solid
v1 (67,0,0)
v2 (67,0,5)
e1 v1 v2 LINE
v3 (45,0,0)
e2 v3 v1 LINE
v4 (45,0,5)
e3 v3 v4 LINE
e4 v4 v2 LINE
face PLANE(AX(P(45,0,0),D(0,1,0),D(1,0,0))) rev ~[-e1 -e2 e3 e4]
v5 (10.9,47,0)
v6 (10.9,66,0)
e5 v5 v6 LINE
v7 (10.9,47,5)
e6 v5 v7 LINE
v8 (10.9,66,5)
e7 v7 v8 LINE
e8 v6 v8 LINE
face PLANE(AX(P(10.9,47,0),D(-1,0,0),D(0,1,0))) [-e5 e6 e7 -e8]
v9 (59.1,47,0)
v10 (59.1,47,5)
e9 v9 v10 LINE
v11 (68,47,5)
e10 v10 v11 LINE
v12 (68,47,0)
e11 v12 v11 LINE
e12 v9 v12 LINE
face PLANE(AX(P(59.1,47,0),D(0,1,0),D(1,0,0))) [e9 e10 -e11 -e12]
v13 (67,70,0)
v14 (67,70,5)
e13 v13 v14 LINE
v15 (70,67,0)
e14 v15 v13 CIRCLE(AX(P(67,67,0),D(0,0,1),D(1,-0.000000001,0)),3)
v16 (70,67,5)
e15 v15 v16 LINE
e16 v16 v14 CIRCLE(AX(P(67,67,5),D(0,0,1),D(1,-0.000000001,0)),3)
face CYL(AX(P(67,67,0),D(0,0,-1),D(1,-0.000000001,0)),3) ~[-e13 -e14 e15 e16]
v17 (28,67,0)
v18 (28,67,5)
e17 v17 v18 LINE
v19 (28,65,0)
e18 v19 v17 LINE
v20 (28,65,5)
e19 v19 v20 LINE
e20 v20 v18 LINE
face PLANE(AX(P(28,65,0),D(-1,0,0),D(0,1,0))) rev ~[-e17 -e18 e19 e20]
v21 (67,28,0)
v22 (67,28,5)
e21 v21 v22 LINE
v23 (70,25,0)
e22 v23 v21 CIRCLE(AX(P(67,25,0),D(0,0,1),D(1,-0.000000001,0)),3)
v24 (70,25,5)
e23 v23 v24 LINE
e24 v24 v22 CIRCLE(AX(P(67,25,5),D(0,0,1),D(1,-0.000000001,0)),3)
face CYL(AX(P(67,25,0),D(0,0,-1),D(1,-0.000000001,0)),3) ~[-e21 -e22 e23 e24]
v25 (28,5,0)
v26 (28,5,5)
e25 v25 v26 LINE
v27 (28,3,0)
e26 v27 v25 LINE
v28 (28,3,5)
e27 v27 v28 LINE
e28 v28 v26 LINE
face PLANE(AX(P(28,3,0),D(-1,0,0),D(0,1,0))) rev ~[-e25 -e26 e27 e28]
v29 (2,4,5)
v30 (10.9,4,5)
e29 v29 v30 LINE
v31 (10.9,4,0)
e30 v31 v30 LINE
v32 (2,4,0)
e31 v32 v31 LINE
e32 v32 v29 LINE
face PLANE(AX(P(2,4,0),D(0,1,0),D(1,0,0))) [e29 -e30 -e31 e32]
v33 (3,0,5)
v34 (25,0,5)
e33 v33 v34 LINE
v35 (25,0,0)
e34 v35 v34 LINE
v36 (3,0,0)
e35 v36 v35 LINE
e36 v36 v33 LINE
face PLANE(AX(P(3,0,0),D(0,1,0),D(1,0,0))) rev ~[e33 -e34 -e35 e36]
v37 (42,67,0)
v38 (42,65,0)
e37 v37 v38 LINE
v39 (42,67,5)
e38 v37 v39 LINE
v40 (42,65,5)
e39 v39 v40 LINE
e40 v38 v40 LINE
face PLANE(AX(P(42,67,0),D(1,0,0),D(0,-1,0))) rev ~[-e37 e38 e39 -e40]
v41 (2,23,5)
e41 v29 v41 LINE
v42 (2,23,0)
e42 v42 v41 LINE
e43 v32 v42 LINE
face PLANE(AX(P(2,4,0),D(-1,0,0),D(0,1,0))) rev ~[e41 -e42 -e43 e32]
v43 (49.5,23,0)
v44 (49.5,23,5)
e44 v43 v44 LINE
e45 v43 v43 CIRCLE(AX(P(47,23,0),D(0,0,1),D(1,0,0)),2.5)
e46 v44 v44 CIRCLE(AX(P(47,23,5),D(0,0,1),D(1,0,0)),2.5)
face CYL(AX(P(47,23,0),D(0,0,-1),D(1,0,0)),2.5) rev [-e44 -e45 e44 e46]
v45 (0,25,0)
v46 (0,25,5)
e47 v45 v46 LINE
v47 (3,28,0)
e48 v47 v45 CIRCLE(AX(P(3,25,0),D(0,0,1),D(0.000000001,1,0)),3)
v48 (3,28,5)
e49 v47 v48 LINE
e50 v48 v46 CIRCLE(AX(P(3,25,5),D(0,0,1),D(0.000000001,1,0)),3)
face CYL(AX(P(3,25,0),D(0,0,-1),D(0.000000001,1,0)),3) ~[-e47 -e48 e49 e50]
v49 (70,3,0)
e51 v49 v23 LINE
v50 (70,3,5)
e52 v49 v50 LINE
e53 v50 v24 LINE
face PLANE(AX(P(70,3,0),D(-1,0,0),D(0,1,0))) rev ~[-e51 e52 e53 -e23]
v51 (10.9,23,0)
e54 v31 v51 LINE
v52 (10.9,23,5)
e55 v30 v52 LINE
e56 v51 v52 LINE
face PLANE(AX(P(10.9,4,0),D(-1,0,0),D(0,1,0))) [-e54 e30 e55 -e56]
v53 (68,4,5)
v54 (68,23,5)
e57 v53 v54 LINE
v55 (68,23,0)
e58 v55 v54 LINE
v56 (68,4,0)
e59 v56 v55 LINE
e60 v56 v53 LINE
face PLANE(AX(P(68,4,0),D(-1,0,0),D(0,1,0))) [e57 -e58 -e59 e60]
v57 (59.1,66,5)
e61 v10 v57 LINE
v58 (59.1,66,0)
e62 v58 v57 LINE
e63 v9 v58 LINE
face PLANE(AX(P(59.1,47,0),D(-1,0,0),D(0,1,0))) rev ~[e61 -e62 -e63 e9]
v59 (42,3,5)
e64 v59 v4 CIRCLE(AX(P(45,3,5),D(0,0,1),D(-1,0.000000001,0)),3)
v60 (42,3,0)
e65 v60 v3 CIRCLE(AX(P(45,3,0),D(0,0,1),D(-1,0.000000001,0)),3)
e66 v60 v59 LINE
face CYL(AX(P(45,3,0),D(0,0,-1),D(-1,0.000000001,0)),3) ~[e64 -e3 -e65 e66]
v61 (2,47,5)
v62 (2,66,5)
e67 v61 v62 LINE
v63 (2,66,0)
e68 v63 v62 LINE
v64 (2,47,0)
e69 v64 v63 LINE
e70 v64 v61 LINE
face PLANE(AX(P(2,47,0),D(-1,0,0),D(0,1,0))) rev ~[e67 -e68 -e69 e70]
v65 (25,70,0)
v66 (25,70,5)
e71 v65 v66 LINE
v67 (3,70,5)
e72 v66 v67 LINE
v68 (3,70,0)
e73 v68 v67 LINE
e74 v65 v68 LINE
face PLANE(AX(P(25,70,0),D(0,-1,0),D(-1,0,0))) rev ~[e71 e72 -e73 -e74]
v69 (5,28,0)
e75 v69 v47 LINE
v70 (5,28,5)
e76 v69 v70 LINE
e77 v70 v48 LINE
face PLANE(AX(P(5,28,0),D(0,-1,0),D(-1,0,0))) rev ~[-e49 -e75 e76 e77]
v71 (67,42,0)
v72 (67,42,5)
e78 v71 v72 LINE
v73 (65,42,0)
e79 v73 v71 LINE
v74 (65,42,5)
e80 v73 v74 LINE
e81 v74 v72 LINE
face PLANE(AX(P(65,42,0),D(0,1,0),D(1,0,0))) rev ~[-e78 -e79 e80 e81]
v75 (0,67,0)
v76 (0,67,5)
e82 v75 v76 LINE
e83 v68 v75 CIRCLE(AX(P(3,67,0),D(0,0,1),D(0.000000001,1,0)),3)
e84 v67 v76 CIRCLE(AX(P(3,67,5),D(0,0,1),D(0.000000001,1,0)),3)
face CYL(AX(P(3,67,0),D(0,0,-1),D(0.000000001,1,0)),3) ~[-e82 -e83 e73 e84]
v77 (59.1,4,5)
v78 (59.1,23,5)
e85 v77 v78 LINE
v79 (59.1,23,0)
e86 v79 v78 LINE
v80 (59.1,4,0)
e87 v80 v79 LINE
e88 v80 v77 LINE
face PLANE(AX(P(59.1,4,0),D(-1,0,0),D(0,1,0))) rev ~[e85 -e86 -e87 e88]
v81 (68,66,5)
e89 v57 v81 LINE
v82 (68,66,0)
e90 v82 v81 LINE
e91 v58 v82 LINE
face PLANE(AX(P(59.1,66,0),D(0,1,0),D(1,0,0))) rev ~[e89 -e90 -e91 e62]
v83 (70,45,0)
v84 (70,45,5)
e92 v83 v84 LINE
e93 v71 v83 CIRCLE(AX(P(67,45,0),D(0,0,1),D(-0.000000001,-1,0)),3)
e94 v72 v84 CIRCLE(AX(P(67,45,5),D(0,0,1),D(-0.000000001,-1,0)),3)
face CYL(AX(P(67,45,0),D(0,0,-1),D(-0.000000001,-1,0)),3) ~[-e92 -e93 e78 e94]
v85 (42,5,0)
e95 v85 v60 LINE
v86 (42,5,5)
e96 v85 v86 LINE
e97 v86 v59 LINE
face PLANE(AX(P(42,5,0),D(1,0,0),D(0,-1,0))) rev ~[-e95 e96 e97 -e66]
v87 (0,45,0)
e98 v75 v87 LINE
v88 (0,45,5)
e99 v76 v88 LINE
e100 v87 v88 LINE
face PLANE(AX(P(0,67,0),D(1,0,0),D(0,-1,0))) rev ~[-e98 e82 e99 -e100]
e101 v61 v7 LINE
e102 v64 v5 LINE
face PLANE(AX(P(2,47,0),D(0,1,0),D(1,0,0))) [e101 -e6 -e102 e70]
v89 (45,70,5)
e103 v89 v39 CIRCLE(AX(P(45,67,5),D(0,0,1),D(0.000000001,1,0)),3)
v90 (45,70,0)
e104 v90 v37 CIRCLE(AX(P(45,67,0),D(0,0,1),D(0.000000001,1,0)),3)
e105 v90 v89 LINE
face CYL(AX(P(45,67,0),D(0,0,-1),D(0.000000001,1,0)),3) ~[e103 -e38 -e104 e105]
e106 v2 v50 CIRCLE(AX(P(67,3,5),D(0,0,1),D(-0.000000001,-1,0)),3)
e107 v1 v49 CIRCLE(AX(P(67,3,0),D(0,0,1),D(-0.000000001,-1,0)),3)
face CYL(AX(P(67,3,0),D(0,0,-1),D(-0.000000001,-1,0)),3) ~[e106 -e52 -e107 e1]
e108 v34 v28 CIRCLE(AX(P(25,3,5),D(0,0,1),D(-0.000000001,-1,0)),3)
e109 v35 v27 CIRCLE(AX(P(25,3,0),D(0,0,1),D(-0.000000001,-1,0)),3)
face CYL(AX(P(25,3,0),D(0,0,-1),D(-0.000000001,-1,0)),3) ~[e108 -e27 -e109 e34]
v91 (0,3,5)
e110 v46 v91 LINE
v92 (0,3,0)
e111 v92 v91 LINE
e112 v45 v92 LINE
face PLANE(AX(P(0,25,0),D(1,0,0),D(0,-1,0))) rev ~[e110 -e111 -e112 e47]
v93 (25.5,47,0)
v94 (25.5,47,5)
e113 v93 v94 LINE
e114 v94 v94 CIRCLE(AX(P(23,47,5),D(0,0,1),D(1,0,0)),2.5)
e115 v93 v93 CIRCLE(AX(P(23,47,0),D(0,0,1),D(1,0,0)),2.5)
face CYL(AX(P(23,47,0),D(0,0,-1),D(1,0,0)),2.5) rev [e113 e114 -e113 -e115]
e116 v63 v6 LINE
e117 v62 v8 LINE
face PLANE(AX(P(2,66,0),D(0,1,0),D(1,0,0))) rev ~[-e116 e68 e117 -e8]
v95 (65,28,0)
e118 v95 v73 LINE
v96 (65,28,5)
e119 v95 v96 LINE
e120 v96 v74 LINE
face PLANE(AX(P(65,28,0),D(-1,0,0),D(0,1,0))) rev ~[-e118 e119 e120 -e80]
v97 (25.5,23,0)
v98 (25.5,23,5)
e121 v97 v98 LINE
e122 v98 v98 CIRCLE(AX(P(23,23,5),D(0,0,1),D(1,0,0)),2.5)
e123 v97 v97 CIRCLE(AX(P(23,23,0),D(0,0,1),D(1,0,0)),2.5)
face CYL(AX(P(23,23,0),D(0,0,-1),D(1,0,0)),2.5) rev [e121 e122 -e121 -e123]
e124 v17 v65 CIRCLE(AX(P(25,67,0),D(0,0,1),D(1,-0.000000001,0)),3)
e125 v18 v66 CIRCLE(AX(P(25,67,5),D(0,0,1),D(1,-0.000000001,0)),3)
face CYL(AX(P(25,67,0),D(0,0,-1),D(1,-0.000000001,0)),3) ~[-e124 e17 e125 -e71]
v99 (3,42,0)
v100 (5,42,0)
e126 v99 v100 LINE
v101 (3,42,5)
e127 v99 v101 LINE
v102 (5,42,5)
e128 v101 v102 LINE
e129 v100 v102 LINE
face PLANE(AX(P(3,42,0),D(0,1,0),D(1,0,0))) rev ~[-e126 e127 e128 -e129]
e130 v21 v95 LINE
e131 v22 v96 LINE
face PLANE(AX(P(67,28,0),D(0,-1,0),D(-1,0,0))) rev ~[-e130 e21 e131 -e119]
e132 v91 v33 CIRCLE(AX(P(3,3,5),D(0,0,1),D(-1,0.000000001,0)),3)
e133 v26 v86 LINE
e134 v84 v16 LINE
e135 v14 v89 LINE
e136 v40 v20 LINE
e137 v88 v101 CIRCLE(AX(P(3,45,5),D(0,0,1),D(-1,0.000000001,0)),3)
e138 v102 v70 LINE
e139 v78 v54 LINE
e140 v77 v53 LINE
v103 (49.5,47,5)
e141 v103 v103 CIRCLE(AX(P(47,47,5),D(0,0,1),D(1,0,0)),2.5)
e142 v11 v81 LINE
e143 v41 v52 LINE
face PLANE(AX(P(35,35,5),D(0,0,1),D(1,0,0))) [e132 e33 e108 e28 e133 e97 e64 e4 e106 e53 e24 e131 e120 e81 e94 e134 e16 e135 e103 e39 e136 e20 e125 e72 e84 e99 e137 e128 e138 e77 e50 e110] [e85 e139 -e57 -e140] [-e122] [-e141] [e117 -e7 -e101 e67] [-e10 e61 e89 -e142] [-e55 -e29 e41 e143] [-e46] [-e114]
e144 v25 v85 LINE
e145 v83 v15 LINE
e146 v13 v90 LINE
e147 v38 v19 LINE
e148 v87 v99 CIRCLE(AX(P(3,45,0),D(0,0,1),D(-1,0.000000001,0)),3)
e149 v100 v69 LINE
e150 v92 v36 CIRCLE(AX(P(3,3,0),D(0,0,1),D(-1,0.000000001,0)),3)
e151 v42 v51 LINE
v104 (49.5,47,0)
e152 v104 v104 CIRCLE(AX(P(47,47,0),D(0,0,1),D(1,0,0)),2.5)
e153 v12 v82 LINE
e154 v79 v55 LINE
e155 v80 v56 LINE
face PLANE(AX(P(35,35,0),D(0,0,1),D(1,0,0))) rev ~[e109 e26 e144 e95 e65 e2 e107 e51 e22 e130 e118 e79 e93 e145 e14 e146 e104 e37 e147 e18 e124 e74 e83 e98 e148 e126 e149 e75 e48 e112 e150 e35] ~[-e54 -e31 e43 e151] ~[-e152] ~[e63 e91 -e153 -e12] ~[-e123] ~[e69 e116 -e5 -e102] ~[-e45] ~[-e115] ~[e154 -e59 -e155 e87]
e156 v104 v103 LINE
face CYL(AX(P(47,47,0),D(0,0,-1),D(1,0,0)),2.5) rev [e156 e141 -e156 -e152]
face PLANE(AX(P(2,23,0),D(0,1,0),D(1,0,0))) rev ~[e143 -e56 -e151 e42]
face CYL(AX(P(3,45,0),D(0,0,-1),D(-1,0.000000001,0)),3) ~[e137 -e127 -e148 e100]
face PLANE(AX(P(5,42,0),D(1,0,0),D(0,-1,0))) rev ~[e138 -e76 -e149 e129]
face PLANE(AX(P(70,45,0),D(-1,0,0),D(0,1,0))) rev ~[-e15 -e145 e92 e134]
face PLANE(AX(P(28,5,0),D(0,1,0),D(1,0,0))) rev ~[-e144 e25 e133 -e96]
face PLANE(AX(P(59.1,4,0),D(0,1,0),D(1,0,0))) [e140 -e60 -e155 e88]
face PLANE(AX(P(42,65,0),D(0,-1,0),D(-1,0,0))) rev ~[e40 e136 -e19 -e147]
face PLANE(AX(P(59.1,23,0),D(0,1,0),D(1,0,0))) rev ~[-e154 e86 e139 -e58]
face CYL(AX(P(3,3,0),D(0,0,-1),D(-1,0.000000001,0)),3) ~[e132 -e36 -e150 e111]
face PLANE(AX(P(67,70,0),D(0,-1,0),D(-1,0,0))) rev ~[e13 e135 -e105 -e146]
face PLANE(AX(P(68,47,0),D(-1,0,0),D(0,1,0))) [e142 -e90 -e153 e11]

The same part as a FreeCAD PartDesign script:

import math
import FreeCAD as App
import Part
import Sketcher

V = App.Vector

doc = App.newDocument("Part")
body = doc.addObject("PartDesign::Body", "Body")

sketch1 = body.newObject("Sketcher::SketchObject", "Sketch")
sketch1.AttachmentSupport = (doc.getObject("XY_Plane"), [""])
sketch1.MapMode = "FlatFace"
sketch1.addGeometry([
    Part.LineSegment(V(3, 0, 0), V(25, 0, 0)),
    Part.ArcOfCircle(Part.Circle(V(25, 3, 0), V(0, 0, 1), 3), math.radians(-90), math.radians(0)),
    Part.LineSegment(V(28, 3, 0), V(28, 5, 0)),
    Part.LineSegment(V(28, 5, 0), V(42, 5, 0)),
    Part.LineSegment(V(42, 5, 0), V(42, 3, 0)),
    Part.ArcOfCircle(Part.Circle(V(45, 3, 0), V(0, 0, 1), 3), math.radians(180), math.radians(270)),
    Part.LineSegment(V(45, 0, 0), V(67, 0, 0)),
    Part.ArcOfCircle(Part.Circle(V(67, 3, 0), V(0, 0, 1), 3), math.radians(-90), math.radians(0)),
    Part.LineSegment(V(70, 3, 0), V(70, 25, 0)),
    Part.ArcOfCircle(Part.Circle(V(67, 25, 0), V(0, 0, 1), 3), math.radians(0), math.radians(90)),
    Part.LineSegment(V(67, 28, 0), V(65, 28, 0)),
    Part.LineSegment(V(65, 28, 0), V(65, 42, 0)),
    Part.LineSegment(V(65, 42, 0), V(67, 42, 0)),
    Part.ArcOfCircle(Part.Circle(V(67, 45, 0), V(0, 0, 1), 3), math.radians(-90), math.radians(0)),
    Part.LineSegment(V(70, 45, 0), V(70, 67, 0)),
    Part.ArcOfCircle(Part.Circle(V(67, 67, 0), V(0, 0, 1), 3), math.radians(0), math.radians(90)),
    Part.LineSegment(V(67, 70, 0), V(45, 70, 0)),
    Part.ArcOfCircle(Part.Circle(V(45, 67, 0), V(0, 0, 1), 3), math.radians(90), math.radians(180)),
    Part.LineSegment(V(42, 67, 0), V(42, 65, 0)),
    Part.LineSegment(V(42, 65, 0), V(28, 65, 0)),
    Part.LineSegment(V(28, 65, 0), V(28, 67, 0)),
    Part.ArcOfCircle(Part.Circle(V(25, 67, 0), V(0, 0, 1), 3), math.radians(0), math.radians(90)),
    Part.LineSegment(V(25, 70, 0), V(3, 70, 0)),
    Part.ArcOfCircle(Part.Circle(V(3, 67, 0), V(0, 0, 1), 3), math.radians(90), math.radians(180)),
    Part.LineSegment(V(0, 67, 0), V(0, 45, 0)),
    Part.ArcOfCircle(Part.Circle(V(3, 45, 0), V(0, 0, 1), 3), math.radians(180), math.radians(270)),
    Part.LineSegment(V(3, 42, 0), V(5, 42, 0)),
    Part.LineSegment(V(5, 42, 0), V(5, 28, 0)),
    Part.LineSegment(V(5, 28, 0), V(3, 28, 0)),
    Part.ArcOfCircle(Part.Circle(V(3, 25, 0), V(0, 0, 1), 3), math.radians(90), math.radians(180)),
    Part.LineSegment(V(0, 25, 0), V(0, 3, 0)),
    Part.ArcOfCircle(Part.Circle(V(3, 3, 0), V(0, 0, 1), 3), math.radians(180), math.radians(270)),
    Part.LineSegment(V(10.9, 4, 0), V(2, 4, 0)),
    Part.LineSegment(V(2, 4, 0), V(2, 23, 0)),
    Part.LineSegment(V(2, 23, 0), V(10.9, 23, 0)),
    Part.LineSegment(V(10.9, 23, 0), V(10.9, 4, 0)),
    Part.Circle(V(23, 23, 0), V(0, 0, 1), 2.5),
    Part.LineSegment(V(68, 4, 0), V(59.1, 4, 0)),
    Part.LineSegment(V(59.1, 4, 0), V(59.1, 23, 0)),
    Part.LineSegment(V(59.1, 23, 0), V(68, 23, 0)),
    Part.LineSegment(V(68, 23, 0), V(68, 4, 0)),
    Part.Circle(V(47, 23, 0), V(0, 0, 1), 2.5),
    Part.Circle(V(23, 47, 0), V(0, 0, 1), 2.5),
    Part.LineSegment(V(10.9, 47, 0), V(2, 47, 0)),
    Part.LineSegment(V(2, 47, 0), V(2, 66, 0)),
    Part.LineSegment(V(2, 66, 0), V(10.9, 66, 0)),
    Part.LineSegment(V(10.9, 66, 0), V(10.9, 47, 0)),
    Part.Circle(V(47, 47, 0), V(0, 0, 1), 2.5),
    Part.LineSegment(V(68, 47, 0), V(59.1, 47, 0)),
    Part.LineSegment(V(59.1, 47, 0), V(59.1, 66, 0)),
    Part.LineSegment(V(59.1, 66, 0), V(68, 66, 0)),
    Part.LineSegment(V(68, 66, 0), V(68, 47, 0)),
], False)
sketch1.addConstraint([
    Sketcher.Constraint("Tangent", 0, 2, 1, 1),
    Sketcher.Constraint("Tangent", 1, 2, 2, 1),
    Sketcher.Constraint("Coincident", 2, 2, 3, 1),
    Sketcher.Constraint("Coincident", 3, 2, 4, 1),
    Sketcher.Constraint("Tangent", 4, 2, 5, 1),
    Sketcher.Constraint("Tangent", 5, 2, 6, 1),
    Sketcher.Constraint("Tangent", 6, 2, 7, 1),
    Sketcher.Constraint("Tangent", 7, 2, 8, 1),
    Sketcher.Constraint("Tangent", 8, 2, 9, 1),
    Sketcher.Constraint("Tangent", 9, 2, 10, 1),
    Sketcher.Constraint("Coincident", 10, 2, 11, 1),
    Sketcher.Constraint("Coincident", 11, 2, 12, 1),
    Sketcher.Constraint("Tangent", 12, 2, 13, 1),
    Sketcher.Constraint("Tangent", 13, 2, 14, 1),
    Sketcher.Constraint("Tangent", 14, 2, 15, 1),
    Sketcher.Constraint("Tangent", 15, 2, 16, 1),
    Sketcher.Constraint("Tangent", 16, 2, 17, 1),
    Sketcher.Constraint("Tangent", 17, 2, 18, 1),
    Sketcher.Constraint("Coincident", 18, 2, 19, 1),
    Sketcher.Constraint("Coincident", 19, 2, 20, 1),
    Sketcher.Constraint("Tangent", 20, 2, 21, 1),
    Sketcher.Constraint("Tangent", 21, 2, 22, 1),
    Sketcher.Constraint("Tangent", 22, 2, 23, 1),
    Sketcher.Constraint("Tangent", 23, 2, 24, 1),
    Sketcher.Constraint("Tangent", 24, 2, 25, 1),
    Sketcher.Constraint("Tangent", 25, 2, 26, 1),
    Sketcher.Constraint("Coincident", 26, 2, 27, 1),
    Sketcher.Constraint("Coincident", 27, 2, 28, 1),
    Sketcher.Constraint("Tangent", 28, 2, 29, 1),
    Sketcher.Constraint("Tangent", 29, 2, 30, 1),
    Sketcher.Constraint("Tangent", 30, 2, 31, 1),
    Sketcher.Constraint("Tangent", 31, 2, 0, 1),
    Sketcher.Constraint("Coincident", 32, 2, 33, 1),
    Sketcher.Constraint("Coincident", 33, 2, 34, 1),
    Sketcher.Constraint("Coincident", 34, 2, 35, 1),
    Sketcher.Constraint("Coincident", 35, 2, 32, 1),
    Sketcher.Constraint("Coincident", 37, 2, 38, 1),
    Sketcher.Constraint("Coincident", 38, 2, 39, 1),
    Sketcher.Constraint("Coincident", 39, 2, 40, 1),
    Sketcher.Constraint("Coincident", 40, 2, 37, 1),
    Sketcher.Constraint("Coincident", 43, 2, 44, 1),
    Sketcher.Constraint("Coincident", 44, 2, 45, 1),
    Sketcher.Constraint("Coincident", 45, 2, 46, 1),
    Sketcher.Constraint("Coincident", 46, 2, 43, 1),
    Sketcher.Constraint("Coincident", 48, 2, 49, 1),
    Sketcher.Constraint("Coincident", 49, 2, 50, 1),
    Sketcher.Constraint("Coincident", 50, 2, 51, 1),
    Sketcher.Constraint("Coincident", 51, 2, 48, 1),
    Sketcher.Constraint("Horizontal", 0),
    Sketcher.Constraint("Vertical", 2),
    Sketcher.Constraint("Horizontal", 3),
    Sketcher.Constraint("Vertical", 4),
    Sketcher.Constraint("Horizontal", 6),
    Sketcher.Constraint("Vertical", 8),
    Sketcher.Constraint("Horizontal", 10),
    Sketcher.Constraint("Vertical", 11),
    Sketcher.Constraint("Horizontal", 12),
    Sketcher.Constraint("Vertical", 14),
    Sketcher.Constraint("Horizontal", 16),
    Sketcher.Constraint("Vertical", 18),
    Sketcher.Constraint("Horizontal", 19),
    Sketcher.Constraint("Vertical", 20),
    Sketcher.Constraint("Horizontal", 22),
    Sketcher.Constraint("Vertical", 24),
    Sketcher.Constraint("Horizontal", 26),
    Sketcher.Constraint("Vertical", 27),
    Sketcher.Constraint("Horizontal", 28),
    Sketcher.Constraint("Vertical", 30),
    Sketcher.Constraint("Horizontal", 32),
    Sketcher.Constraint("Vertical", 33),
    Sketcher.Constraint("Horizontal", 34),
    Sketcher.Constraint("Vertical", 35),
    Sketcher.Constraint("Horizontal", 37),
    Sketcher.Constraint("Vertical", 38),
    Sketcher.Constraint("Horizontal", 39),
    Sketcher.Constraint("Vertical", 40),
    Sketcher.Constraint("Horizontal", 43),
    Sketcher.Constraint("Vertical", 44),
    Sketcher.Constraint("Horizontal", 45),
    Sketcher.Constraint("Vertical", 46),
    Sketcher.Constraint("Horizontal", 48),
    Sketcher.Constraint("Vertical", 49),
    Sketcher.Constraint("Horizontal", 50),
    Sketcher.Constraint("Vertical", 51),
    Sketcher.Constraint("Equal", 1, 5),
    Sketcher.Constraint("Equal", 5, 7),
    Sketcher.Constraint("Equal", 7, 9),
    Sketcher.Constraint("Equal", 9, 13),
    Sketcher.Constraint("Equal", 13, 15),
    Sketcher.Constraint("Equal", 15, 17),
    Sketcher.Constraint("Equal", 17, 21),
    Sketcher.Constraint("Equal", 21, 23),
    Sketcher.Constraint("Equal", 23, 25),
    Sketcher.Constraint("Equal", 25, 29),
    Sketcher.Constraint("Equal", 29, 31),
    Sketcher.Constraint("Equal", 36, 41),
    Sketcher.Constraint("Equal", 41, 42),
    Sketcher.Constraint("Equal", 42, 47),
    Sketcher.Constraint("PointOnObject", 0, 2, -1),
    Sketcher.Constraint("PointOnObject", 5, 2, -1),
    Sketcher.Constraint("PointOnObject", 23, 2, -2),
    Sketcher.Constraint("PointOnObject", 29, 2, -2),
    Sketcher.Constraint("Horizontal", 17, 3, 21, 3),
    Sketcher.Constraint("Horizontal", 13, 3, 25, 3),
    Sketcher.Constraint("Horizontal", 9, 3, 29, 3),
    Sketcher.Constraint("Horizontal", 36, 3, 41, 3),
    Sketcher.Constraint("Horizontal", 42, 3, 47, 3),
    Sketcher.Constraint("Horizontal", 41, 3, 33, 2),
    Sketcher.Constraint("Horizontal", 35, 2, 37, 2),
    Sketcher.Constraint("Horizontal", 34, 2, 38, 2),
    Sketcher.Constraint("Horizontal", 47, 3, 43, 2),
    Sketcher.Constraint("Horizontal", 46, 2, 48, 2),
    Sketcher.Constraint("Horizontal", 45, 2, 49, 2),
    Sketcher.Constraint("Vertical", 9, 3, 13, 3),
    Sketcher.Constraint("Vertical", 5, 3, 17, 3),
    Sketcher.Constraint("Vertical", 1, 3, 21, 3),
    Sketcher.Constraint("Vertical", 36, 3, 42, 3),
    Sketcher.Constraint("Vertical", 41, 3, 47, 3),
    Sketcher.Constraint("Vertical", 33, 2, 43, 2),
    Sketcher.Constraint("Vertical", 35, 2, 45, 2),
    Sketcher.Constraint("Vertical", 38, 2, 48, 2),
    Sketcher.Constraint("Vertical", 40, 2, 50, 2),
    Sketcher.Constraint("Equal", 0, 6),
    Sketcher.Constraint("Equal", 12, 26),
    Sketcher.Constraint("Equal", 34, 37),
    Sketcher.Constraint("Equal", 28, 2),
    Sketcher.Constraint("Equal", 22, 8),
    Sketcher.Constraint("Equal", 19, 11),
    Sketcher.Constraint("Equal", 8, 14),
    Sketcher.Constraint("Equal", 4, 18),
    Sketcher.Constraint("Equal", 40, 44),
    Sketcher.Constraint("Diameter", 36, 5.0),
    Sketcher.Constraint("Radius", 1, 3.0),
    Sketcher.Constraint("DistanceX", 0, 1, 0, 2, 22.0),
    Sketcher.Constraint("DistanceX", 3, 1, 3, 2, 14.0),
    Sketcher.Constraint("DistanceX", 10, 2, 10, 1, 2.0),
    Sketcher.Constraint("DistanceY", 33, 1, 33, 2, 19.0),
    Sketcher.Constraint("DistanceX", 32, 2, 32, 1, 8.9),
    Sketcher.Constraint("DistanceX", -1, 1, 36, 3, 23.0),
    Sketcher.Constraint("DistanceY", -1, 1, 36, 3, 23.0),
    Sketcher.Constraint("DistanceX", -1, 1, 41, 3, 47.0),
    Sketcher.Constraint("DistanceY", -1, 1, 42, 3, 47.0),
    Sketcher.Constraint("DistanceX", -1, 1, 32, 2, 2.0),
    Sketcher.Constraint("DistanceX", -1, 1, 39, 2, 68.0),
])
pad1 = body.newObject("PartDesign::Pad", "Pad")
pad1.Profile = sketch1
pad1.Length = 5

doc.recompute()
